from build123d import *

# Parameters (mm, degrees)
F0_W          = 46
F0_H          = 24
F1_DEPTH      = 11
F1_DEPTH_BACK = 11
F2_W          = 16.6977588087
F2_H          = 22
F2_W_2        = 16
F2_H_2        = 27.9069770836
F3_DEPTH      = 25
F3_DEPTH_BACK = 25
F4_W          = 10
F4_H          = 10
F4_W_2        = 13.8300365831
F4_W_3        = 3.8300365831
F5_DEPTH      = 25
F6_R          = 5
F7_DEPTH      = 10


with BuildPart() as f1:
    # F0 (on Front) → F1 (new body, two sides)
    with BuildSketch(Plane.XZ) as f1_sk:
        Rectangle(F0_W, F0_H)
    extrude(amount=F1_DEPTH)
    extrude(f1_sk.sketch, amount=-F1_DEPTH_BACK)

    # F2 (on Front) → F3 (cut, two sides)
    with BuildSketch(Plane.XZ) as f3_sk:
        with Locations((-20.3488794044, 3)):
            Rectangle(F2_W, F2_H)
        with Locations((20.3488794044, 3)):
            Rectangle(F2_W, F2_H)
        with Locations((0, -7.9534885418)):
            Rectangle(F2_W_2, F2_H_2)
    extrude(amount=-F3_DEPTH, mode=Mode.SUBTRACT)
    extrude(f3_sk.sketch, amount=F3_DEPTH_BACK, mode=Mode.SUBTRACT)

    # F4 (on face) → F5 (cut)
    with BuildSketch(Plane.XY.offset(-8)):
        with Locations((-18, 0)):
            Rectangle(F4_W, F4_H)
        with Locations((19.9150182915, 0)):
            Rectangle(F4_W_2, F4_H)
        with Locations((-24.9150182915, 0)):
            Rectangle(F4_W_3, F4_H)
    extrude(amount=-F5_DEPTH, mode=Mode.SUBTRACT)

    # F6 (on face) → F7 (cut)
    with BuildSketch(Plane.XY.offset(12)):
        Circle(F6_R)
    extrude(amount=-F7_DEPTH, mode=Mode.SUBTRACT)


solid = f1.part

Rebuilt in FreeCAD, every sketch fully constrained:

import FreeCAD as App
import Part
import Sketcher


def add_polygon(sketch, points):
    """Adds a closed chain of lines whose ends are joined by coincident constraints."""
    first, n = sketch.GeometryCount, len(points)
    for a, b in zip(points, points[1:] + points[:1]):
        sketch.addGeometry(Part.LineSegment(App.Vector(*a, 0), App.Vector(*b, 0)), False)
    for i in range(n):
        sketch.addConstraint(Sketcher.Constraint("Coincident", first + i, 2, first + (i + 1) % n, 1))

doc = App.newDocument("Part")
params = doc.addObject("Spreadsheet::Sheet", "Params")
for row, (alias, value) in enumerate([
    ("sketch1_width", "46 mm"),
    ("sketch1_height", "24 mm"),
    ("pad1_length", "11 mm"),
    ("pad1_length2", "11 mm"),
    ("sketch2_width", "16 mm"),
    ("sketch2_height", "22 mm"),
    ("sketch3_height", "10 mm"),
    ("pocket2_length", "25 mm"),
    ("sketch4_diameter", "10 mm"),
    ("pocket3_length", "10 mm"),
], start=1):
    params.set(f"A{row}", alias)
    params.set(f"B{row}", "=" + value)
    params.setAlias(f"B{row}", alias)

body = doc.addObject("PartDesign::Body", "Body")

# Sketch on XZ plane
sketch1 = body.newObject("Sketcher::SketchObject", "Sketch")
sketch1.AttachmentSupport = (doc.getObject("XZ_Plane"), [""])
sketch1.MapMode = "FlatFace"
add_polygon(sketch1, [(-23, 12), (-23, -12), (23, -12), (23, 12)])  # lines 0-3
sketch1.addConstraint([
    Sketcher.Constraint("Vertical", 0),
    Sketcher.Constraint("Horizontal", 1),
    Sketcher.Constraint("Vertical", 2),
    Sketcher.Constraint("Horizontal", 3),
    Sketcher.Constraint("Symmetric", 0, 2, 2, 2, -1, 1),
    Sketcher.Constraint("DistanceX", 1, 1, 1, 2, 46.0),
    Sketcher.Constraint("DistanceY", 0, 2, 0, 1, 24.0),
])
sketch1.setExpression("Constraints[9]", "Params.sketch1_width")
sketch1.setExpression("Constraints[10]", "Params.sketch1_height")
pad1 = body.newObject("PartDesign::Pad", "Pad")
pad1.Profile = sketch1
pad1.Type = "TwoLengths"
pad1.setExpression("Length", "Params.pad1_length")
pad1.setExpression("Length2", "Params.pad1_length2")

# Sketch on XZ plane
sketch2 = body.newObject("Sketcher::SketchObject", "Sketch001")
sketch2.AttachmentSupport = (doc.getObject("XZ_Plane"), [""])
sketch2.MapMode = "FlatFace"
add_polygon(sketch2, [(-29, 14), (-29, -8), (-12, -8), (-12, 14)])  # lines 0-3
add_polygon(sketch2, [(12, 14), (12, -8), (29, -8), (29, 14)])  # lines 4-7
add_polygon(sketch2, [(-8, 6), (-8, -22), (8, -22), (8, 6)])  # lines 8-11
sketch2.addConstraint([
    Sketcher.Constraint("Vertical", 0),
    Sketcher.Constraint("Horizontal", 1),
    Sketcher.Constraint("Vertical", 2),
    Sketcher.Constraint("Horizontal", 3),
    Sketcher.Constraint("Vertical", 4),
    Sketcher.Constraint("Horizontal", 5),
    Sketcher.Constraint("Vertical", 6),
    Sketcher.Constraint("Horizontal", 7),
    Sketcher.Constraint("Vertical", 8),
    Sketcher.Constraint("Horizontal", 9),
    Sketcher.Constraint("Vertical", 10),
    Sketcher.Constraint("Horizontal", 11),
    Sketcher.Constraint("Symmetric", 1, 2, 4, 2, -2),
    Sketcher.Constraint("Symmetric", 3, 2, 6, 2, -2),
    Sketcher.Constraint("DistanceX", 9, 1, 9, 2, 16.0),
    Sketcher.Constraint("DistanceY", 0, 2, 0, 1, 22.0),
    Sketcher.Constraint("DistanceY", 0, 2, -1, 1, 8.0),
    Sketcher.Constraint("DistanceX", 1, 2, -1, 1, 12.0),
    Sketcher.Constraint("DistanceX", 8, 2, -1, 1, 8.0),
    Sketcher.Constraint("DistanceY", -1, 1, 10, 2, 6.0),
    Sketcher.Constraint("DistanceX", 1, 1, 1, 2, 16.697759),
    Sketcher.Constraint("DistanceY", 8, 2, 8, 1, 27.906977),
])
sketch2.setExpression("Constraints[26]", "Params.sketch2_width")
sketch2.setExpression("Constraints[27]", "Params.sketch2_height")
pocket1 = body.newObject("PartDesign::Pocket", "Pocket")
pocket1.Profile = sketch2
pocket1.Type = "ThroughAll"
pocket1.Midplane = True

# Sketch on XY plane
sketch3 = body.newObject("Sketcher::SketchObject", "Sketch002")
sketch3.AttachmentSupport = (doc.getObject("XY_Plane"), [""])
sketch3.MapMode = "FlatFace"
sketch3.AttachmentOffset = App.Placement(App.Vector(0, 0, -8), App.Rotation())
add_polygon(sketch3, [(-13, -5), (-13, 5), (-27, 5), (-27, -5)])  # lines 0-3
add_polygon(sketch3, [(13, 5), (13, -5), (27, -5), (27, 5)])  # lines 4-7
sketch3.addConstraint([
    Sketcher.Constraint("Vertical", 0),
    Sketcher.Constraint("Horizontal", 1),
    Sketcher.Constraint("Vertical", 2),
    Sketcher.Constraint("Horizontal", 3),
    Sketcher.Constraint("Vertical", 4),
    Sketcher.Constraint("Horizontal", 5),
    Sketcher.Constraint("Vertical", 6),
    Sketcher.Constraint("Horizontal", 7),
    Sketcher.Constraint("Symmetric", 0, 2, 4, 2, -1, 1),
    Sketcher.Constraint("Symmetric", 2, 2, 6, 2, -1, 1),
    Sketcher.Constraint("Horizontal", 3, 2, 4, 2),
    Sketcher.Constraint("DistanceY", 0, 1, 0, 2, 10.0),
    Sketcher.Constraint("DistanceX", 0, 2, -1, 1, 13.0),
    Sketcher.Constraint("DistanceX", 1, 2, 1, 1, 13.830037),
])
sketch3.setExpression("Constraints[19]", "Params.sketch3_height")
pocket2 = body.newObject("PartDesign::Pocket", "Pocket001")
pocket2.Profile = sketch3
pocket2.setExpression("Length", "Params.pocket2_length")

# Sketch on XY plane
sketch4 = body.newObject("Sketcher::SketchObject", "Sketch003")
sketch4.AttachmentSupport = (doc.getObject("XY_Plane"), [""])
sketch4.MapMode = "FlatFace"
sketch4.AttachmentOffset = App.Placement(App.Vector(0, 0, 12), App.Rotation())
sketch4.addGeometry(Part.Circle(App.Vector(0, 0, 0), App.Vector(0, 0, 1), 5), False)
sketch4.addConstraint([
    Sketcher.Constraint("Coincident", 0, 3, -1, 1),
    Sketcher.Constraint("Diameter", 0, 10.0),
])
sketch4.setExpression("Constraints[1]", "Params.sketch4_diameter")
pocket3 = body.newObject("PartDesign::Pocket", "Pocket002")
pocket3.Profile = sketch4
pocket3.setExpression("Length", "Params.pocket3_length")

doc.recompute()
